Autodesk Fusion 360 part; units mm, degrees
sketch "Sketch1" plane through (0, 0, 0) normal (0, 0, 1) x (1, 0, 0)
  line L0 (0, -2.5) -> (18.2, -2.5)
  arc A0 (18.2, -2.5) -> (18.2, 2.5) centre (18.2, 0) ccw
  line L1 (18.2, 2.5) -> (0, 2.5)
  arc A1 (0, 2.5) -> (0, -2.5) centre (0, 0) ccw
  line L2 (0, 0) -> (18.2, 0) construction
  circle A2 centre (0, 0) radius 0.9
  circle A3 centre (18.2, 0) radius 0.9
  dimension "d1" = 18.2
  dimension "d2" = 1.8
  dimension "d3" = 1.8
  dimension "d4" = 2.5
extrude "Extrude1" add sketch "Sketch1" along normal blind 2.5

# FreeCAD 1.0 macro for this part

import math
import FreeCAD as App
import Part
import Sketcher

V = App.Vector
Q = App.Units.Quantity

doc = App.newDocument("Part")
body = doc.addObject("PartDesign::Body", "Body")

sketch1 = body.newObject("Sketcher::SketchObject", "Sketch")
sketch1.AttachmentSupport = (doc.getObject("XY_Plane"), [""])
sketch1.MapMode = "FlatFace"
sketch1.addGeometry([
    Part.ArcOfCircle(Part.Circle(V(0, 0, 0), V(0, 0, 1), 2.5), math.radians(90), math.radians(270)),
    Part.LineSegment(V(0, -2.5, 0), V(18.2, -2.5, 0)),
    Part.ArcOfCircle(Part.Circle(V(18.2, 0, 0), V(0, 0, 1), 2.5), math.radians(-90), math.radians(90)),
    Part.LineSegment(V(18.2, 2.5, 0), V(0, 2.5, 0)),
    Part.Circle(V(0, 0, 0), V(0, 0, 1), 0.9),
    Part.Circle(V(18.2, 0, 0), V(0, 0, 1), 0.9),
], False)
sketch1.addConstraint([
    Sketcher.Constraint("Tangent", 0, 2, 1, 1),
    Sketcher.Constraint("Tangent", 1, 2, 2, 1),
    Sketcher.Constraint("Tangent", 2, 2, 3, 1),
    Sketcher.Constraint("Tangent", 3, 2, 0, 1),
    Sketcher.Constraint("Horizontal", 1),
    Sketcher.Constraint("Horizontal", 3),
    Sketcher.Constraint("Coincident", 0, 3, -1, 1),
    Sketcher.Constraint("Coincident", 4, 3, -1, 1),
    Sketcher.Constraint("Coincident", 5, 3, 2, 3),
    Sketcher.Constraint("Equal", 4, 5),
    Sketcher.Constraint("Diameter", 4, Q("1.8 mm")),
    Sketcher.Constraint("Radius", 0, Q("2.5 mm")),
    Sketcher.Constraint("DistanceX", 1, 1, 1, 2, Q("18.2 mm")),
])
pad1 = body.newObject("PartDesign::Pad", "Pad")
pad1.Profile = sketch1
pad1.Length = 2.5

doc.recompute()
